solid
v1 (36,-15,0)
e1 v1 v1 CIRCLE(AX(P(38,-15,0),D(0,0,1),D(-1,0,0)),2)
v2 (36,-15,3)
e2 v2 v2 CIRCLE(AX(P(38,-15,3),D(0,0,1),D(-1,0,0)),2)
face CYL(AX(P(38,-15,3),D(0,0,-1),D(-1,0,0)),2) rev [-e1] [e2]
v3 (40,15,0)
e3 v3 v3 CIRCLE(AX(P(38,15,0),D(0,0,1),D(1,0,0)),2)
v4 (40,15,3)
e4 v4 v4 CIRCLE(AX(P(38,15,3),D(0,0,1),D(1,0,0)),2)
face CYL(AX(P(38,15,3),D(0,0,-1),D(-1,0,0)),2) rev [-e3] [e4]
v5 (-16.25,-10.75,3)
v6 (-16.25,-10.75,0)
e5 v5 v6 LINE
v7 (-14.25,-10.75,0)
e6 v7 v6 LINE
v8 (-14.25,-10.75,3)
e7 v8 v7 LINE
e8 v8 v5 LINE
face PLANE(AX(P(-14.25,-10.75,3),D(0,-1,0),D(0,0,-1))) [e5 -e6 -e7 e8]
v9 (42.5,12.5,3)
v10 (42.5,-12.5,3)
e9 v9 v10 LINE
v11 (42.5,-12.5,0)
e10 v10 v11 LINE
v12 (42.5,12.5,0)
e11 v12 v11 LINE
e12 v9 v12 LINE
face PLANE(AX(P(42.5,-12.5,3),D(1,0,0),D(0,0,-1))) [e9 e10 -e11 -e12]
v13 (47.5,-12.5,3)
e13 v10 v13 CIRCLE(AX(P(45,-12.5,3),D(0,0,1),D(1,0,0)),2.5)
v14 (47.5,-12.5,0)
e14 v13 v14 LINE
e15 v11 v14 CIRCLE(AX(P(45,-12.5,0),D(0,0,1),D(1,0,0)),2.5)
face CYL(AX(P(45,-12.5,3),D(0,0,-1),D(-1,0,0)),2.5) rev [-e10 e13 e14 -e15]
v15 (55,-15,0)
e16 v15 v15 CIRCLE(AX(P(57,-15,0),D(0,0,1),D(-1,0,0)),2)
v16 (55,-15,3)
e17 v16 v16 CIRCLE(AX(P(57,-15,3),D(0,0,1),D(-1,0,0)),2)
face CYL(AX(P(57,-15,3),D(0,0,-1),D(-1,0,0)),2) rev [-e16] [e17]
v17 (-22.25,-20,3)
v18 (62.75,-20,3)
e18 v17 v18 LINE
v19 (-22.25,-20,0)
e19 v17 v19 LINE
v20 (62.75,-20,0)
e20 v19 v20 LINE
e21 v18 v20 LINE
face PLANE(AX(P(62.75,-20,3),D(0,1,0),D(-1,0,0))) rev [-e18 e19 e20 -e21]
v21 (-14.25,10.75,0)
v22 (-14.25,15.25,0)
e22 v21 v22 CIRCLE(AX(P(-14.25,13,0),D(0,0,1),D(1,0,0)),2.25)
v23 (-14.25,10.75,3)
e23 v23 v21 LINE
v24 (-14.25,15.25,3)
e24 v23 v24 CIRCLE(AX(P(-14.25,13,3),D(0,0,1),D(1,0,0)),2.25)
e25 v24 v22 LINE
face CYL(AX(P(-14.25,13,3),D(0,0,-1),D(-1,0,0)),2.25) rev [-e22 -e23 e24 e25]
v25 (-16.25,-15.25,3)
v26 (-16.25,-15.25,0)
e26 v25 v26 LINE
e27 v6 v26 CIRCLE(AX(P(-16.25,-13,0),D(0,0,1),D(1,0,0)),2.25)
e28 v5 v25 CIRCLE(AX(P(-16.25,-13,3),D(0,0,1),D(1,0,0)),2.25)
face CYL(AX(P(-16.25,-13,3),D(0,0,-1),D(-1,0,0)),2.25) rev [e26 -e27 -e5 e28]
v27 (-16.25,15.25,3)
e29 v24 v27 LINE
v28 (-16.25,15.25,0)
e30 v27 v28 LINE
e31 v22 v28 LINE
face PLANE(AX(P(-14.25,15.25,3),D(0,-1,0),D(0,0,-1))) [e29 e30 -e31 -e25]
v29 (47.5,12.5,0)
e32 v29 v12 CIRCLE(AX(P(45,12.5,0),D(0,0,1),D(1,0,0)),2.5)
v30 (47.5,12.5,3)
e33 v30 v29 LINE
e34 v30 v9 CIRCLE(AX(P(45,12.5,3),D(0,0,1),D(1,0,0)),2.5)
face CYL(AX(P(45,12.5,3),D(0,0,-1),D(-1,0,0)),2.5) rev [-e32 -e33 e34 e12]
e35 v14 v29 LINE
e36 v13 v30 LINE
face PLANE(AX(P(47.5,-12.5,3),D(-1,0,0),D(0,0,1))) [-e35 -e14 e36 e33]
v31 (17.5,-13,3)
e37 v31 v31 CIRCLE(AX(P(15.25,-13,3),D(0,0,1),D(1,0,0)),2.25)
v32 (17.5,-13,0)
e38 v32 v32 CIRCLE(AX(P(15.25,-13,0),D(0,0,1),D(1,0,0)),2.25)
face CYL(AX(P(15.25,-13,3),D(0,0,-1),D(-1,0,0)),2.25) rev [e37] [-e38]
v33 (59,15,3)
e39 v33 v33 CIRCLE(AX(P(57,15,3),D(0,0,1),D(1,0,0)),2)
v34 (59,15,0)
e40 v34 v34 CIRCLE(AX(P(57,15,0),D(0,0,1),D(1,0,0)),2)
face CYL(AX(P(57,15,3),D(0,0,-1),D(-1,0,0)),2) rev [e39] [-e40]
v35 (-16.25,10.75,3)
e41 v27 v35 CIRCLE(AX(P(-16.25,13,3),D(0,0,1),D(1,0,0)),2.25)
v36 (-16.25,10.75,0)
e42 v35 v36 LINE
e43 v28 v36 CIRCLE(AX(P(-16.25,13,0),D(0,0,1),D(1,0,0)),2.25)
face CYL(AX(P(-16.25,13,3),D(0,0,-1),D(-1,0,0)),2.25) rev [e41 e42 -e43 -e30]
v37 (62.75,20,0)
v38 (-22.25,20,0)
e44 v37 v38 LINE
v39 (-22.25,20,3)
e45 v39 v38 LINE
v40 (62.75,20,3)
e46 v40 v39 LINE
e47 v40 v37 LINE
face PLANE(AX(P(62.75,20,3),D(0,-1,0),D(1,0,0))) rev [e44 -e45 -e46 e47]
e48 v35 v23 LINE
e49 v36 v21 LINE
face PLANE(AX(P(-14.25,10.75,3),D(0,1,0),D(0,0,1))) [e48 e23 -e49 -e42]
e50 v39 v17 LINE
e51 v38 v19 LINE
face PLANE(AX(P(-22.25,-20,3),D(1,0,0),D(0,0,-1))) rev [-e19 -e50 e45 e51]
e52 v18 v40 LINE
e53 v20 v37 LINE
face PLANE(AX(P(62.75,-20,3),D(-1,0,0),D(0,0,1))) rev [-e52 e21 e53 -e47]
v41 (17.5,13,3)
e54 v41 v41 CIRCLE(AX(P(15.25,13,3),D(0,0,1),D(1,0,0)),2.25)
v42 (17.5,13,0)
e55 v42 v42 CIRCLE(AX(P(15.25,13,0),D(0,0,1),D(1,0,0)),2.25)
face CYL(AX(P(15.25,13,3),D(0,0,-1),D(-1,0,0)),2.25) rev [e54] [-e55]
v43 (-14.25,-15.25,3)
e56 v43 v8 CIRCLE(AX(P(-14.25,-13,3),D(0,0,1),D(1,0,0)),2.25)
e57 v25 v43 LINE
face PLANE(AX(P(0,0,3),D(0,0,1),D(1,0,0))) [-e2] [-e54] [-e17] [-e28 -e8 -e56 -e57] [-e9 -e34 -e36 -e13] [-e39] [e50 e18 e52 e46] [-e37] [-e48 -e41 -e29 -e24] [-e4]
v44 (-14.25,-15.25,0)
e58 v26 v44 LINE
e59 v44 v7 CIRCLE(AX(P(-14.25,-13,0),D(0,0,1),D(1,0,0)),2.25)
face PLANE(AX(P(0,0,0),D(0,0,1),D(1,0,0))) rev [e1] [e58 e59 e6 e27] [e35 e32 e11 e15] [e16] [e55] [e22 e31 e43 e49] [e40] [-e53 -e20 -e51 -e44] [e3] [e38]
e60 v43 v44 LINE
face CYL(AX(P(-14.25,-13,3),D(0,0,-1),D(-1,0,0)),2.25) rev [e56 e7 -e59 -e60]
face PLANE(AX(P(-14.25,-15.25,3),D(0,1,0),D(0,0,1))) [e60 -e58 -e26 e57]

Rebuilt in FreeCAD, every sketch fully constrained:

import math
import FreeCAD as App
import Part
import Sketcher
Q = App.Units.Quantity


def add_polygon(sketch, points):
    """Adds a closed chain of lines whose ends are joined by coincident constraints."""
    first, n = sketch.GeometryCount, len(points)
    for a, b in zip(points, points[1:] + points[:1]):
        sketch.addGeometry(Part.LineSegment(App.Vector(*a, 0), App.Vector(*b, 0)), False)
    for i in range(n):
        sketch.addConstraint(Sketcher.Constraint("Coincident", first + i, 2, first + (i + 1) % n, 1))

doc = App.newDocument("Part")
body = doc.addObject("PartDesign::Body", "Body")

sketch1 = body.newObject("Sketcher::SketchObject", "Sketch")
sketch1.AttachmentSupport = (doc.getObject("XY_Plane"), [""])
sketch1.MapMode = "FlatFace"
add_polygon(sketch1, [(-22.2, 20), (-22.2, -20), (62.8, -20), (62.8, 20)])
sketch1.addGeometry(Part.ArcOfCircle(Part.Circle(App.Vector(-14.2, -13, 0), App.Vector(0, 0, 1), 2.2), math.radians(-90), math.radians(90)), False)
sketch1.addGeometry(Part.LineSegment(App.Vector(-14.2, -15.2, 0), App.Vector(-16.2, -15.2, 0)), False)
sketch1.addGeometry(Part.ArcOfCircle(Part.Circle(App.Vector(-16.2, -13, 0), App.Vector(0, 0, 1), 2.2), math.radians(90), math.radians(270)), False)
sketch1.addGeometry(Part.LineSegment(App.Vector(-16.2, -10.8, 0), App.Vector(-14.2, -10.8, 0)), False)
sketch1.addGeometry(Part.Circle(App.Vector(15.2, -13, 0), App.Vector(0, 0, 1), 2.2), False)
sketch1.addGeometry(Part.Circle(App.Vector(38, -15, 0), App.Vector(0, 0, 1), 2), False)
sketch1.addGeometry(Part.Circle(App.Vector(57, -15, 0), App.Vector(0, 0, 1), 2), False)
sketch1.addGeometry(Part.ArcOfCircle(Part.Circle(App.Vector(-14.2, 13, 0), App.Vector(0, 0, 1), 2.2), math.radians(-90), math.radians(90)), False)
sketch1.addGeometry(Part.LineSegment(App.Vector(-14.2, 10.8, 0), App.Vector(-16.2, 10.8, 0)), False)
sketch1.addGeometry(Part.ArcOfCircle(Part.Circle(App.Vector(-16.2, 13, 0), App.Vector(0, 0, 1), 2.2), math.radians(90), math.radians(270)), False)
sketch1.addGeometry(Part.LineSegment(App.Vector(-16.2, 15.2, 0), App.Vector(-14.2, 15.2, 0)), False)
sketch1.addGeometry(Part.Circle(App.Vector(15.2, 13, 0), App.Vector(0, 0, 1), 2.2), False)
sketch1.addGeometry(Part.ArcOfCircle(Part.Circle(App.Vector(45, -12.5, 0), App.Vector(0, 0, 1), 2.5), math.radians(180), math.radians(360)), False)
sketch1.addGeometry(Part.LineSegment(App.Vector(42.5, -12.5, 0), App.Vector(42.5, 12.5, 0)), False)
sketch1.addGeometry(Part.ArcOfCircle(Part.Circle(App.Vector(45, 12.5, 0), App.Vector(0, 0, 1), 2.5), math.radians(0), math.radians(180)), False)
sketch1.addGeometry(Part.LineSegment(App.Vector(47.5, 12.5, 0), App.Vector(47.5, -12.5, 0)), False)
sketch1.addGeometry(Part.Circle(App.Vector(38, 15, 0), App.Vector(0, 0, 1), 2), False)
sketch1.addGeometry(Part.Circle(App.Vector(57, 15, 0), App.Vector(0, 0, 1), 2), False)
sketch1.addConstraint(Sketcher.Constraint("Tangent", 4, 1, 5, 1))
sketch1.addConstraint(Sketcher.Constraint("Tangent", 5, 2, 6, 2))
sketch1.addConstraint(Sketcher.Constraint("Tangent", 6, 1, 7, 1))
sketch1.addConstraint(Sketcher.Constraint("Tangent", 7, 2, 4, 2))
sketch1.addConstraint(Sketcher.Constraint("Tangent", 11, 1, 12, 1))
sketch1.addConstraint(Sketcher.Constraint("Tangent", 12, 2, 13, 2))
sketch1.addConstraint(Sketcher.Constraint("Tangent", 13, 1, 14, 1))
sketch1.addConstraint(Sketcher.Constraint("Tangent", 14, 2, 11, 2))
sketch1.addConstraint(Sketcher.Constraint("Tangent", 16, 1, 17, 1))
sketch1.addConstraint(Sketcher.Constraint("Tangent", 17, 2, 18, 2))
sketch1.addConstraint(Sketcher.Constraint("Tangent", 18, 1, 19, 1))
sketch1.addConstraint(Sketcher.Constraint("Tangent", 19, 2, 16, 2))
sketch1.addConstraint(Sketcher.Constraint("Vertical", 0))
sketch1.addConstraint(Sketcher.Constraint("Horizontal", 1))
sketch1.addConstraint(Sketcher.Constraint("Vertical", 2))
sketch1.addConstraint(Sketcher.Constraint("Horizontal", 3))
sketch1.addConstraint(Sketcher.Constraint("Horizontal", 5))
sketch1.addConstraint(Sketcher.Constraint("Horizontal", 7))
sketch1.addConstraint(Sketcher.Constraint("Horizontal", 12))
sketch1.addConstraint(Sketcher.Constraint("Horizontal", 14))
sketch1.addConstraint(Sketcher.Constraint("Vertical", 17))
sketch1.addConstraint(Sketcher.Constraint("Vertical", 19))
sketch1.addConstraint(Sketcher.Constraint("Equal", 6, 8))
sketch1.addConstraint(Sketcher.Constraint("Equal", 9, 10))
sketch1.addConstraint(Sketcher.Constraint("Equal", 8, 11))
sketch1.addConstraint(Sketcher.Constraint("Equal", 13, 15))
sketch1.addConstraint(Sketcher.Constraint("Equal", 10, 20))
sketch1.addConstraint(Sketcher.Constraint("Equal", 20, 21))
sketch1.addConstraint(Sketcher.Constraint("Symmetric", 4, 3, 11, 3, -1))
sketch1.addConstraint(Sketcher.Constraint("Symmetric", 8, 3, 15, 3, -1))
sketch1.addConstraint(Sketcher.Constraint("Symmetric", 9, 3, 20, 3, -1))
sketch1.addConstraint(Sketcher.Constraint("Symmetric", 10, 3, 21, 3, -1))
sketch1.addConstraint(Sketcher.Constraint("Horizontal", 6, 3, 8, 3))
sketch1.addConstraint(Sketcher.Constraint("Horizontal", 9, 3, 10, 3))
sketch1.addConstraint(Sketcher.Constraint("Vertical", 6, 3, 13, 3))
sketch1.addConstraint(Sketcher.Constraint("Diameter", 9, Q("4 mm")))
sketch1.addConstraint(Sketcher.Constraint("Diameter", 8, Q("4.5 mm")))
sketch1.addConstraint(Sketcher.Constraint("Radius", 16, Q("2.5 mm")))
sketch1.addConstraint(Sketcher.Constraint("DistanceX", 1, 1, 1, 2, Q("85 mm")))
sketch1.addConstraint(Sketcher.Constraint("DistanceX", 5, 2, 5, 1, Q("2 mm")))
sketch1.addConstraint(Sketcher.Constraint("DistanceY", 0, 2, 0, 1, Q("40 mm")))
sketch1.addConstraint(Sketcher.Constraint("DistanceY", 17, 1, 17, 2, Q("25 mm")))
sketch1.addConstraint(Sketcher.Constraint("DistanceY", 4, 3, -1, 1, Q("13 mm")))
sketch1.addConstraint(Sketcher.Constraint("DistanceX", -1, 1, 9, 3, Q("38 mm")))
sketch1.addConstraint(Sketcher.Constraint("DistanceY", 9, 3, -1, 1, Q("15 mm")))
sketch1.addConstraint(Sketcher.Constraint("DistanceX", -1, 1, 10, 3, Q("57 mm")))
sketch1.addConstraint(Sketcher.Constraint("DistanceX", -1, 1, 16, 3, Q("45 mm")))
sketch1.addConstraint(Sketcher.Constraint("DistanceY", 0, 2, -1, 1, Q("20 mm")))
sketch1.addConstraint(Sketcher.Constraint("DistanceX", 0, 2, 6, 3, Q("6 mm")))
sketch1.addConstraint(Sketcher.Constraint("DistanceY", 16, 3, -1, 1, Q("12.5 mm")))
sketch1.addConstraint(Sketcher.Constraint("DistanceX", 4, 3, 8, 3, Q("29.5 mm")))
sketch1.addConstraint(Sketcher.Constraint("DistanceX", 4, 3, -1, 1, Q("14.25 mm")))
pad1 = body.newObject("PartDesign::Pad", "Pad")
pad1.Profile = sketch1
pad1.Length = 3

doc.recompute()
